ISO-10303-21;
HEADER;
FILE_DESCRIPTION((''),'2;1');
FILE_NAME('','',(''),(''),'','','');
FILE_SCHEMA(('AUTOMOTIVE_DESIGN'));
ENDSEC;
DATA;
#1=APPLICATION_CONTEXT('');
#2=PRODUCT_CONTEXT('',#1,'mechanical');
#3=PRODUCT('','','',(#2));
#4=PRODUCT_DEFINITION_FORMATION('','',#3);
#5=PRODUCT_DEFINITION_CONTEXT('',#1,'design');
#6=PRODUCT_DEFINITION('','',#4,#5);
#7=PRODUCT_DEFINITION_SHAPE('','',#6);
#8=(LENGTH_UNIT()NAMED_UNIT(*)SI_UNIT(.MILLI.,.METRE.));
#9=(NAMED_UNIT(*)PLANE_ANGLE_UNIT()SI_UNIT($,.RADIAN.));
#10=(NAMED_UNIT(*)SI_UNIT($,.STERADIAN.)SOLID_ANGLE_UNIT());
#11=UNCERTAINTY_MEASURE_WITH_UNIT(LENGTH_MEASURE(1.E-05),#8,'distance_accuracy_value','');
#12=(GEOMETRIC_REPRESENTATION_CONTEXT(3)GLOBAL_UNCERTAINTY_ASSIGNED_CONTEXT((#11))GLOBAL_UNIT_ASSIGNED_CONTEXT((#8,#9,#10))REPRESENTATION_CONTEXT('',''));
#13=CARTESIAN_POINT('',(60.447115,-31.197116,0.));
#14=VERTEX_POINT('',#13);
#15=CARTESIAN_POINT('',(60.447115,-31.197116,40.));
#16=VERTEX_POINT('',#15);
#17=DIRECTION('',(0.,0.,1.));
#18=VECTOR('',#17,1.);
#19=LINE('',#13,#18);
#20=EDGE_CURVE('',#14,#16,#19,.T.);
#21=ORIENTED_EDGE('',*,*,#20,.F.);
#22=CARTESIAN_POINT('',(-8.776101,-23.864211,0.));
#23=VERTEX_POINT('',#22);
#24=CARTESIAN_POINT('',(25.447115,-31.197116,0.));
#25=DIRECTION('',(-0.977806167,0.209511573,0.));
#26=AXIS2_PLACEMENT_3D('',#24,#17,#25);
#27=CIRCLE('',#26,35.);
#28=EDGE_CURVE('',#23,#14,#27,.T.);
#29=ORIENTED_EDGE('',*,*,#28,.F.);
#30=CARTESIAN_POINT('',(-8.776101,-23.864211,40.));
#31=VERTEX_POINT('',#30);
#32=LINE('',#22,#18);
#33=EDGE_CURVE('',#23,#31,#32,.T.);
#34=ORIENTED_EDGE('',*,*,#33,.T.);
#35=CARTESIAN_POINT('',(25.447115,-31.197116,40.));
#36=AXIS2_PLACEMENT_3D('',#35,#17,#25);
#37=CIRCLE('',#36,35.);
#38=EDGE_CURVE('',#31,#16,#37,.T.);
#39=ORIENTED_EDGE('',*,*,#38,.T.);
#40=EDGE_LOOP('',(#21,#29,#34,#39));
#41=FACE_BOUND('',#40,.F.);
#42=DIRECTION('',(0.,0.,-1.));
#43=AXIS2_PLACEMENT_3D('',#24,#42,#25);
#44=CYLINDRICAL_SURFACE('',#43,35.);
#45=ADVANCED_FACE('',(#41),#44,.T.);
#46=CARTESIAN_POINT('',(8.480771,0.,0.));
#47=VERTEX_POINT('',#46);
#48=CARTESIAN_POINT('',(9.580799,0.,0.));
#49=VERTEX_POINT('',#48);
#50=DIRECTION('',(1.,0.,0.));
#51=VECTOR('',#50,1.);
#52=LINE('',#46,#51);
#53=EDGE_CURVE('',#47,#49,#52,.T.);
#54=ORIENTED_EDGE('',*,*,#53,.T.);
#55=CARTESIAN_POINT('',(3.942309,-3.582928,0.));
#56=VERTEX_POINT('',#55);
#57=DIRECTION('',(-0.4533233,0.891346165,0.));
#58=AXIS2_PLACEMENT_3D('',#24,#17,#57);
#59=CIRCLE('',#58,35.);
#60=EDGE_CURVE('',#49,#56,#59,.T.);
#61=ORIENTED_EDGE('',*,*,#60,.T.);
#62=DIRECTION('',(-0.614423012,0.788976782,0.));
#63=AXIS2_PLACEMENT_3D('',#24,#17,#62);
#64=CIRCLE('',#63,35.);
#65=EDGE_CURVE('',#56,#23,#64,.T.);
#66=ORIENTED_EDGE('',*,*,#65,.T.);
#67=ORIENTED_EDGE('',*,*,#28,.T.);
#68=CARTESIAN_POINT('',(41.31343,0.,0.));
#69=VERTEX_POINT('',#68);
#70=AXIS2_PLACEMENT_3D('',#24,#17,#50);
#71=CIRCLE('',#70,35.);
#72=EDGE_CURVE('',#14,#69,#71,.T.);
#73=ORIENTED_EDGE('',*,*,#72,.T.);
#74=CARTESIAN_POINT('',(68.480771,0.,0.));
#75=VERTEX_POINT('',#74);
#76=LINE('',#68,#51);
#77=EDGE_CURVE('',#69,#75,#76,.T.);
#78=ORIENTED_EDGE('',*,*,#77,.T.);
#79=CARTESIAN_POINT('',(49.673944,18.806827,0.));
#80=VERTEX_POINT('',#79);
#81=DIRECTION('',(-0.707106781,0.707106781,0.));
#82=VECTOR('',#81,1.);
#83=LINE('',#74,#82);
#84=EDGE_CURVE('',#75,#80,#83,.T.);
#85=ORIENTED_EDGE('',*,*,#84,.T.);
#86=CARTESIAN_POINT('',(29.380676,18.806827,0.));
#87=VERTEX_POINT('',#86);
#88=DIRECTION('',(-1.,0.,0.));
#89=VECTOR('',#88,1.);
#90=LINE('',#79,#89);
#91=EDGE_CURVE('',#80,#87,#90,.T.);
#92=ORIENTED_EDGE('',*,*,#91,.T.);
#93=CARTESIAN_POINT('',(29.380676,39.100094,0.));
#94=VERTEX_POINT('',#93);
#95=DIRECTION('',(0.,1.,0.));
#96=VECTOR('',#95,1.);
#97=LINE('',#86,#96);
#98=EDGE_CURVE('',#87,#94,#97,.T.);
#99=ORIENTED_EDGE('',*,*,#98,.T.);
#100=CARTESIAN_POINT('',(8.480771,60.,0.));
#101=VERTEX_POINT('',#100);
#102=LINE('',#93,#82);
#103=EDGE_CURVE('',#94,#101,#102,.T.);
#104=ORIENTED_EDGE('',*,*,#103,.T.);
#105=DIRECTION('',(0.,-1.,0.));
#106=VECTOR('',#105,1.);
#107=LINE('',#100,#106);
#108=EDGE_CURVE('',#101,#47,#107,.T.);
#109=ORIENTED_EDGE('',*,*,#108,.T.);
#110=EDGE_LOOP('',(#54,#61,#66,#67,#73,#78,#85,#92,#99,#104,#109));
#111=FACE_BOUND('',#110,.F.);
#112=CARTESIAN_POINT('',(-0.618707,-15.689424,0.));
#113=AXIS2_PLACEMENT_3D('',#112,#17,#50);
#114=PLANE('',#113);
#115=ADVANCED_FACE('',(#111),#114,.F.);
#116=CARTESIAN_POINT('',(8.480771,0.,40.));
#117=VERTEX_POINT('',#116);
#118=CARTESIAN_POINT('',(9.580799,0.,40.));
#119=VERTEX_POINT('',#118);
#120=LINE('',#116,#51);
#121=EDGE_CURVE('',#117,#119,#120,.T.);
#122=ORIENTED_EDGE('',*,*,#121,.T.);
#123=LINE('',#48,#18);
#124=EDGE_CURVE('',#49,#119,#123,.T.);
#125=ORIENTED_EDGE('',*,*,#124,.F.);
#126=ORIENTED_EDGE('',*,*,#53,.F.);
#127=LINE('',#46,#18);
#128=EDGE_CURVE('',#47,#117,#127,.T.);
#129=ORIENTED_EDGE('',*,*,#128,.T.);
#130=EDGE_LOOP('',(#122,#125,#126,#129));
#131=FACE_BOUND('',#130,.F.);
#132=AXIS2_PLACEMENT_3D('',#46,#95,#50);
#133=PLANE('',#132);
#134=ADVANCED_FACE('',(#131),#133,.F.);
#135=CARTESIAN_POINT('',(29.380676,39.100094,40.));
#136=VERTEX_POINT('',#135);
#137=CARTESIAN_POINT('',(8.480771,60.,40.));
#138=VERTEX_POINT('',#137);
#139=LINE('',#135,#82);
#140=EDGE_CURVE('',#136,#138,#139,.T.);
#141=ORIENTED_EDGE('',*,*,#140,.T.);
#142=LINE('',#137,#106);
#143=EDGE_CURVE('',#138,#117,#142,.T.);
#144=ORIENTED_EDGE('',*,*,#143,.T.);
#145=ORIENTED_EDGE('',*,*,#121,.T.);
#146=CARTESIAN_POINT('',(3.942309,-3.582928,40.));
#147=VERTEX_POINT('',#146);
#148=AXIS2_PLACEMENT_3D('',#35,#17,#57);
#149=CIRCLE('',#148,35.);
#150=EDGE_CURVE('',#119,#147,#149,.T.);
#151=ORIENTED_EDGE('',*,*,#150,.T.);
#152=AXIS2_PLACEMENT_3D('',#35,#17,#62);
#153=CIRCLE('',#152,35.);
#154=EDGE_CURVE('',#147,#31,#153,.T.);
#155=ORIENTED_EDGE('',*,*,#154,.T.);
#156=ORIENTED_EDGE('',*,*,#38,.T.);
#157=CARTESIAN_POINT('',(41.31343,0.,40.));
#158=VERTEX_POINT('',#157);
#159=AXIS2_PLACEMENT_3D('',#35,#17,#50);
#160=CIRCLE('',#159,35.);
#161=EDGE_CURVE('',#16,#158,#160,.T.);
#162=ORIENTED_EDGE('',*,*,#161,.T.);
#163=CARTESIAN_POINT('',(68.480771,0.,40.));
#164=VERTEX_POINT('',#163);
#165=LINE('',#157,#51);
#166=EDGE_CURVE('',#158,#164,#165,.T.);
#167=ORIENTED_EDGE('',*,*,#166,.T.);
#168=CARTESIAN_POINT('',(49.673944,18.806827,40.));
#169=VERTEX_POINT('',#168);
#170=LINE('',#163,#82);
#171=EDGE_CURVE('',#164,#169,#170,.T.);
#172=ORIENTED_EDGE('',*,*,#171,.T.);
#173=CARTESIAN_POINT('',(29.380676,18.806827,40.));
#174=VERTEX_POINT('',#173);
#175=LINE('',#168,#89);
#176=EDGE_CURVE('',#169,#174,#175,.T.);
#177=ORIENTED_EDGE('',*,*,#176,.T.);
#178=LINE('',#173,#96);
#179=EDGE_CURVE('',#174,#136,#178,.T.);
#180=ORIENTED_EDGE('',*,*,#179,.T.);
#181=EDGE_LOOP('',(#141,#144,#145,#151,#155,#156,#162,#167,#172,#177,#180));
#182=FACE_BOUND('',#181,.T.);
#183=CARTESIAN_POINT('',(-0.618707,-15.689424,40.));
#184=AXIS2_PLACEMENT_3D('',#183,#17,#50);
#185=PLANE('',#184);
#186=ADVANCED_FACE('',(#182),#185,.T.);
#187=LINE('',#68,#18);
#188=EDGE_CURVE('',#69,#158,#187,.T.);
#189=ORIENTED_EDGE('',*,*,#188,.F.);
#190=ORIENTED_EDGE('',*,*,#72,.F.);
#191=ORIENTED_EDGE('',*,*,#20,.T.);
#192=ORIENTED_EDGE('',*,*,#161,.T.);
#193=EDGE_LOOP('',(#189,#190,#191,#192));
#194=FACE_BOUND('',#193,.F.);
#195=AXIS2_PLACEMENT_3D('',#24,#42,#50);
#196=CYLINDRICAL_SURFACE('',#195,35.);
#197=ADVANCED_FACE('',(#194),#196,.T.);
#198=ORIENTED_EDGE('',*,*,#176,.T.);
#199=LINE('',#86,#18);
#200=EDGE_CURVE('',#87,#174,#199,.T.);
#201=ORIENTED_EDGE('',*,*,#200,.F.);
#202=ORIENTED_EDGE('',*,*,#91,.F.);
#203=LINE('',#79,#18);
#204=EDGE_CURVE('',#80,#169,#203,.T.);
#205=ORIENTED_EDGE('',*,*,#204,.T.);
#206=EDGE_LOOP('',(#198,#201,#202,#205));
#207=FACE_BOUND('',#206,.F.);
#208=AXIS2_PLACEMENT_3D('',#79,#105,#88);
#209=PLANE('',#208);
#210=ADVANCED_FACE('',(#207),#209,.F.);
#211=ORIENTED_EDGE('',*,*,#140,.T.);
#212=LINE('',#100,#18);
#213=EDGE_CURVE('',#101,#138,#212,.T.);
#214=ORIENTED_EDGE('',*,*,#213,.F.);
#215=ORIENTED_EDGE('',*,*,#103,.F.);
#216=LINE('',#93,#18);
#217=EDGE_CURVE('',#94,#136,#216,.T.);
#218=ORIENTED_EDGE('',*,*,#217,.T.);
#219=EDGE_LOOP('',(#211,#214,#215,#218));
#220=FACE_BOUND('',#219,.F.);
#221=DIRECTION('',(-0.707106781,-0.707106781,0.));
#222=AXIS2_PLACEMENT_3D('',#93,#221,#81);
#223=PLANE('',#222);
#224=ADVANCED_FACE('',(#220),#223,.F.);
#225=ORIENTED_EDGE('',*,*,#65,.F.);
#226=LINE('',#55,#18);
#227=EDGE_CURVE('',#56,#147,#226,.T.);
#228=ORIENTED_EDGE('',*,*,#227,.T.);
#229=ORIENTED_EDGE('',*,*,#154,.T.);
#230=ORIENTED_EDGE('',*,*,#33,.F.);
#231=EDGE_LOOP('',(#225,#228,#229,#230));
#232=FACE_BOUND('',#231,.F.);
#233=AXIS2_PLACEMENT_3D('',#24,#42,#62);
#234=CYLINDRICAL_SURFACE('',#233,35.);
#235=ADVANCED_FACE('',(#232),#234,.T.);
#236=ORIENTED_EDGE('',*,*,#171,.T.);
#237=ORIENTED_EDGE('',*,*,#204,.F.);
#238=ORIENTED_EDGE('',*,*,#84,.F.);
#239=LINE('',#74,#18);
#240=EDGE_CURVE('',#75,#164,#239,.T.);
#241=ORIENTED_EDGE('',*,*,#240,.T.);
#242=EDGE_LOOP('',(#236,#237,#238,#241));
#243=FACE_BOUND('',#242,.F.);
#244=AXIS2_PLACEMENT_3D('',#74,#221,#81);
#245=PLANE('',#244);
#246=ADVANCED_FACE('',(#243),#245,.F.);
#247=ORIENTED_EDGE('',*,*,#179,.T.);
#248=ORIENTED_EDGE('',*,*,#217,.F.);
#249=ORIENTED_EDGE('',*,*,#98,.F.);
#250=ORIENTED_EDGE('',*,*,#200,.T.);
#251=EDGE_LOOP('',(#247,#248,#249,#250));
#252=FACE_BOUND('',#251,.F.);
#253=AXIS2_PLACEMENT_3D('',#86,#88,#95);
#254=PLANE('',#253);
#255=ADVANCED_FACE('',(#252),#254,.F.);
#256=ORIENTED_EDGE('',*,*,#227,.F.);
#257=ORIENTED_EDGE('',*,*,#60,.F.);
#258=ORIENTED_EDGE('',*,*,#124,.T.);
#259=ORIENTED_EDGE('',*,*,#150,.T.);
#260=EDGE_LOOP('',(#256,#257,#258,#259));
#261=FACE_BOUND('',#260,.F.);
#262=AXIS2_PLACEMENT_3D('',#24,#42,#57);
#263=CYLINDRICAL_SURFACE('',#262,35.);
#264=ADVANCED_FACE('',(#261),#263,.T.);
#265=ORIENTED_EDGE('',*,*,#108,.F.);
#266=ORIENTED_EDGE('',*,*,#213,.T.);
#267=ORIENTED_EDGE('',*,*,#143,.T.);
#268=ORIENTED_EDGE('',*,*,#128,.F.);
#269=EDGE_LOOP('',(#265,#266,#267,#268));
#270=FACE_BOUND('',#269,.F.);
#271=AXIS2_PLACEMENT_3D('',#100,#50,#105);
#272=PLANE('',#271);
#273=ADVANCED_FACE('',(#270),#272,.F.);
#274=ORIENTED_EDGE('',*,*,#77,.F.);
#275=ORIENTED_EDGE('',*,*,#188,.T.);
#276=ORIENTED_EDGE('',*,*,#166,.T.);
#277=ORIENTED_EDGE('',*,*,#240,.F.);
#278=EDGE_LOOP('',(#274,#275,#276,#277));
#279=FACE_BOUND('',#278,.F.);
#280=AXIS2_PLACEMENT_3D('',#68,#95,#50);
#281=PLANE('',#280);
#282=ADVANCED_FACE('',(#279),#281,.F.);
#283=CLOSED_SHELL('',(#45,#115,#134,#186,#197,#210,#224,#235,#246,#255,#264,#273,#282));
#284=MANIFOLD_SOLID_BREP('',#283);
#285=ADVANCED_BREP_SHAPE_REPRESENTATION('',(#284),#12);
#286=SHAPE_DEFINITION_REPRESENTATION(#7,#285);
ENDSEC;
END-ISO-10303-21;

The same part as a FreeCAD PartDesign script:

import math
import FreeCAD as App
import Part
import Sketcher
Q = App.Units.Quantity

doc = App.newDocument("Part")
body = doc.addObject("PartDesign::Body", "Body")

# Sketch on XY plane
sketch1 = doc.addObject("Sketcher::SketchObject", "Sketch")
body.addObject(sketch1)
sketch1.AttachmentSupport = (doc.XY_Plane, [""])
sketch1.MapMode = "FlatFace"
sketch1.addGeometry([
    Part.ArcOfCircle(Part.Circle(App.Vector(25.4, -31.2, 0), App.Vector(0, 0, 1), 35), math.radians(128), math.radians(168)),  # 0
    Part.ArcOfCircle(Part.Circle(App.Vector(25.4, -31.2, 0), App.Vector(0, 0, 1), 35), math.radians(168), math.radians(360)),  # 1
    Part.ArcOfCircle(Part.Circle(App.Vector(25.4, -31.2, 0), App.Vector(0, 0, 1), 35), math.radians(0), math.radians(63)),  # 2
    Part.LineSegment(App.Vector(41.3, 0, 0), App.Vector(68.5, 0, 0)),  # 3
    Part.LineSegment(App.Vector(68.5, 0, 0), App.Vector(49.7, 18.8, 0)),  # 4
    Part.LineSegment(App.Vector(49.7, 18.8, 0), App.Vector(29.4, 18.8, 0)),  # 5
    Part.LineSegment(App.Vector(29.4, 18.8, 0), App.Vector(29.4, 39.1, 0)),  # 6
    Part.LineSegment(App.Vector(29.4, 39.1, 0), App.Vector(8.5, 60, 0)),  # 7
    Part.LineSegment(App.Vector(8.5, 60, 0), App.Vector(8.5, 0, 0)),  # 8
    Part.LineSegment(App.Vector(8.5, 0, 0), App.Vector(9.6, 0, 0)),  # 9
    Part.ArcOfCircle(Part.Circle(App.Vector(25.4, -31.2, 0), App.Vector(0, 0, 1), 35), math.radians(116.96), math.radians(127.91)),  # 10
], False)
sketch1.addConstraint([
    Sketcher.Constraint("Tangent", 0, 2, 1, 1),
    Sketcher.Constraint("Tangent", 1, 2, 2, 1),
    Sketcher.Constraint("Coincident", 2, 2, 3, 1),
    Sketcher.Constraint("Coincident", 3, 2, 4, 1),
    Sketcher.Constraint("Coincident", 4, 2, 5, 1),
    Sketcher.Constraint("Coincident", 5, 2, 6, 1),
    Sketcher.Constraint("Coincident", 6, 2, 7, 1),
    Sketcher.Constraint("Coincident", 7, 2, 8, 1),
    Sketcher.Constraint("Coincident", 8, 2, 9, 1),
    Sketcher.Constraint("Coincident", 9, 2, 10, 1),
    Sketcher.Constraint("Tangent", 10, 2, 0, 1),
    Sketcher.Constraint("Horizontal", 3),
    Sketcher.Constraint("Horizontal", 5),
    Sketcher.Constraint("Vertical", 6),
    Sketcher.Constraint("Vertical", 8),
    Sketcher.Constraint("Horizontal", 9),
    Sketcher.Constraint("Coincident", 2, 3, 0, 3),
    Sketcher.Constraint("Equal", 2, 10),
    Sketcher.Constraint("PointOnObject", 2, 2, -1),
    Sketcher.Constraint("PointOnObject", 8, 2, -1),
    Sketcher.Constraint("Parallel", 4, 7),
    Sketcher.Constraint("Horizontal", 10, 3, 1, 2),
    Sketcher.Constraint("Equal", 5, 6),
    Sketcher.Constraint("Radius", 0, Q("35 mm")),
    Sketcher.Constraint("DistanceY", 8, 2, 8, 1, Q("60 mm")),
    Sketcher.Constraint("Angle", 4, Q("135 deg")),
    Sketcher.Constraint("DistanceX", 3, 1, 3, 2, Q("27.16734 mm")),
    Sketcher.Constraint("DistanceX", 9, 1, 9, 2, Q("1.100029 mm")),
    Sketcher.Constraint("DistanceX", 0, 2, -1, 1, Q("8.776101 mm")),
    Sketcher.Constraint("DistanceX", -1, 1, 9, 2, Q("9.580799 mm")),
    Sketcher.Constraint("Distance", 4, Q("26.59687 mm")),
    Sketcher.Constraint("Distance", 7, Q("29.55693 mm")),
    Sketcher.Constraint("DistanceX", -1, 1, 10, 2, Q("3.942309 mm")),
])
pad1 = doc.addObject("PartDesign::Pad", "Pad")
body.addObject(pad1)
pad1.Profile = sketch1
pad1.Length = 40

doc.recompute()
